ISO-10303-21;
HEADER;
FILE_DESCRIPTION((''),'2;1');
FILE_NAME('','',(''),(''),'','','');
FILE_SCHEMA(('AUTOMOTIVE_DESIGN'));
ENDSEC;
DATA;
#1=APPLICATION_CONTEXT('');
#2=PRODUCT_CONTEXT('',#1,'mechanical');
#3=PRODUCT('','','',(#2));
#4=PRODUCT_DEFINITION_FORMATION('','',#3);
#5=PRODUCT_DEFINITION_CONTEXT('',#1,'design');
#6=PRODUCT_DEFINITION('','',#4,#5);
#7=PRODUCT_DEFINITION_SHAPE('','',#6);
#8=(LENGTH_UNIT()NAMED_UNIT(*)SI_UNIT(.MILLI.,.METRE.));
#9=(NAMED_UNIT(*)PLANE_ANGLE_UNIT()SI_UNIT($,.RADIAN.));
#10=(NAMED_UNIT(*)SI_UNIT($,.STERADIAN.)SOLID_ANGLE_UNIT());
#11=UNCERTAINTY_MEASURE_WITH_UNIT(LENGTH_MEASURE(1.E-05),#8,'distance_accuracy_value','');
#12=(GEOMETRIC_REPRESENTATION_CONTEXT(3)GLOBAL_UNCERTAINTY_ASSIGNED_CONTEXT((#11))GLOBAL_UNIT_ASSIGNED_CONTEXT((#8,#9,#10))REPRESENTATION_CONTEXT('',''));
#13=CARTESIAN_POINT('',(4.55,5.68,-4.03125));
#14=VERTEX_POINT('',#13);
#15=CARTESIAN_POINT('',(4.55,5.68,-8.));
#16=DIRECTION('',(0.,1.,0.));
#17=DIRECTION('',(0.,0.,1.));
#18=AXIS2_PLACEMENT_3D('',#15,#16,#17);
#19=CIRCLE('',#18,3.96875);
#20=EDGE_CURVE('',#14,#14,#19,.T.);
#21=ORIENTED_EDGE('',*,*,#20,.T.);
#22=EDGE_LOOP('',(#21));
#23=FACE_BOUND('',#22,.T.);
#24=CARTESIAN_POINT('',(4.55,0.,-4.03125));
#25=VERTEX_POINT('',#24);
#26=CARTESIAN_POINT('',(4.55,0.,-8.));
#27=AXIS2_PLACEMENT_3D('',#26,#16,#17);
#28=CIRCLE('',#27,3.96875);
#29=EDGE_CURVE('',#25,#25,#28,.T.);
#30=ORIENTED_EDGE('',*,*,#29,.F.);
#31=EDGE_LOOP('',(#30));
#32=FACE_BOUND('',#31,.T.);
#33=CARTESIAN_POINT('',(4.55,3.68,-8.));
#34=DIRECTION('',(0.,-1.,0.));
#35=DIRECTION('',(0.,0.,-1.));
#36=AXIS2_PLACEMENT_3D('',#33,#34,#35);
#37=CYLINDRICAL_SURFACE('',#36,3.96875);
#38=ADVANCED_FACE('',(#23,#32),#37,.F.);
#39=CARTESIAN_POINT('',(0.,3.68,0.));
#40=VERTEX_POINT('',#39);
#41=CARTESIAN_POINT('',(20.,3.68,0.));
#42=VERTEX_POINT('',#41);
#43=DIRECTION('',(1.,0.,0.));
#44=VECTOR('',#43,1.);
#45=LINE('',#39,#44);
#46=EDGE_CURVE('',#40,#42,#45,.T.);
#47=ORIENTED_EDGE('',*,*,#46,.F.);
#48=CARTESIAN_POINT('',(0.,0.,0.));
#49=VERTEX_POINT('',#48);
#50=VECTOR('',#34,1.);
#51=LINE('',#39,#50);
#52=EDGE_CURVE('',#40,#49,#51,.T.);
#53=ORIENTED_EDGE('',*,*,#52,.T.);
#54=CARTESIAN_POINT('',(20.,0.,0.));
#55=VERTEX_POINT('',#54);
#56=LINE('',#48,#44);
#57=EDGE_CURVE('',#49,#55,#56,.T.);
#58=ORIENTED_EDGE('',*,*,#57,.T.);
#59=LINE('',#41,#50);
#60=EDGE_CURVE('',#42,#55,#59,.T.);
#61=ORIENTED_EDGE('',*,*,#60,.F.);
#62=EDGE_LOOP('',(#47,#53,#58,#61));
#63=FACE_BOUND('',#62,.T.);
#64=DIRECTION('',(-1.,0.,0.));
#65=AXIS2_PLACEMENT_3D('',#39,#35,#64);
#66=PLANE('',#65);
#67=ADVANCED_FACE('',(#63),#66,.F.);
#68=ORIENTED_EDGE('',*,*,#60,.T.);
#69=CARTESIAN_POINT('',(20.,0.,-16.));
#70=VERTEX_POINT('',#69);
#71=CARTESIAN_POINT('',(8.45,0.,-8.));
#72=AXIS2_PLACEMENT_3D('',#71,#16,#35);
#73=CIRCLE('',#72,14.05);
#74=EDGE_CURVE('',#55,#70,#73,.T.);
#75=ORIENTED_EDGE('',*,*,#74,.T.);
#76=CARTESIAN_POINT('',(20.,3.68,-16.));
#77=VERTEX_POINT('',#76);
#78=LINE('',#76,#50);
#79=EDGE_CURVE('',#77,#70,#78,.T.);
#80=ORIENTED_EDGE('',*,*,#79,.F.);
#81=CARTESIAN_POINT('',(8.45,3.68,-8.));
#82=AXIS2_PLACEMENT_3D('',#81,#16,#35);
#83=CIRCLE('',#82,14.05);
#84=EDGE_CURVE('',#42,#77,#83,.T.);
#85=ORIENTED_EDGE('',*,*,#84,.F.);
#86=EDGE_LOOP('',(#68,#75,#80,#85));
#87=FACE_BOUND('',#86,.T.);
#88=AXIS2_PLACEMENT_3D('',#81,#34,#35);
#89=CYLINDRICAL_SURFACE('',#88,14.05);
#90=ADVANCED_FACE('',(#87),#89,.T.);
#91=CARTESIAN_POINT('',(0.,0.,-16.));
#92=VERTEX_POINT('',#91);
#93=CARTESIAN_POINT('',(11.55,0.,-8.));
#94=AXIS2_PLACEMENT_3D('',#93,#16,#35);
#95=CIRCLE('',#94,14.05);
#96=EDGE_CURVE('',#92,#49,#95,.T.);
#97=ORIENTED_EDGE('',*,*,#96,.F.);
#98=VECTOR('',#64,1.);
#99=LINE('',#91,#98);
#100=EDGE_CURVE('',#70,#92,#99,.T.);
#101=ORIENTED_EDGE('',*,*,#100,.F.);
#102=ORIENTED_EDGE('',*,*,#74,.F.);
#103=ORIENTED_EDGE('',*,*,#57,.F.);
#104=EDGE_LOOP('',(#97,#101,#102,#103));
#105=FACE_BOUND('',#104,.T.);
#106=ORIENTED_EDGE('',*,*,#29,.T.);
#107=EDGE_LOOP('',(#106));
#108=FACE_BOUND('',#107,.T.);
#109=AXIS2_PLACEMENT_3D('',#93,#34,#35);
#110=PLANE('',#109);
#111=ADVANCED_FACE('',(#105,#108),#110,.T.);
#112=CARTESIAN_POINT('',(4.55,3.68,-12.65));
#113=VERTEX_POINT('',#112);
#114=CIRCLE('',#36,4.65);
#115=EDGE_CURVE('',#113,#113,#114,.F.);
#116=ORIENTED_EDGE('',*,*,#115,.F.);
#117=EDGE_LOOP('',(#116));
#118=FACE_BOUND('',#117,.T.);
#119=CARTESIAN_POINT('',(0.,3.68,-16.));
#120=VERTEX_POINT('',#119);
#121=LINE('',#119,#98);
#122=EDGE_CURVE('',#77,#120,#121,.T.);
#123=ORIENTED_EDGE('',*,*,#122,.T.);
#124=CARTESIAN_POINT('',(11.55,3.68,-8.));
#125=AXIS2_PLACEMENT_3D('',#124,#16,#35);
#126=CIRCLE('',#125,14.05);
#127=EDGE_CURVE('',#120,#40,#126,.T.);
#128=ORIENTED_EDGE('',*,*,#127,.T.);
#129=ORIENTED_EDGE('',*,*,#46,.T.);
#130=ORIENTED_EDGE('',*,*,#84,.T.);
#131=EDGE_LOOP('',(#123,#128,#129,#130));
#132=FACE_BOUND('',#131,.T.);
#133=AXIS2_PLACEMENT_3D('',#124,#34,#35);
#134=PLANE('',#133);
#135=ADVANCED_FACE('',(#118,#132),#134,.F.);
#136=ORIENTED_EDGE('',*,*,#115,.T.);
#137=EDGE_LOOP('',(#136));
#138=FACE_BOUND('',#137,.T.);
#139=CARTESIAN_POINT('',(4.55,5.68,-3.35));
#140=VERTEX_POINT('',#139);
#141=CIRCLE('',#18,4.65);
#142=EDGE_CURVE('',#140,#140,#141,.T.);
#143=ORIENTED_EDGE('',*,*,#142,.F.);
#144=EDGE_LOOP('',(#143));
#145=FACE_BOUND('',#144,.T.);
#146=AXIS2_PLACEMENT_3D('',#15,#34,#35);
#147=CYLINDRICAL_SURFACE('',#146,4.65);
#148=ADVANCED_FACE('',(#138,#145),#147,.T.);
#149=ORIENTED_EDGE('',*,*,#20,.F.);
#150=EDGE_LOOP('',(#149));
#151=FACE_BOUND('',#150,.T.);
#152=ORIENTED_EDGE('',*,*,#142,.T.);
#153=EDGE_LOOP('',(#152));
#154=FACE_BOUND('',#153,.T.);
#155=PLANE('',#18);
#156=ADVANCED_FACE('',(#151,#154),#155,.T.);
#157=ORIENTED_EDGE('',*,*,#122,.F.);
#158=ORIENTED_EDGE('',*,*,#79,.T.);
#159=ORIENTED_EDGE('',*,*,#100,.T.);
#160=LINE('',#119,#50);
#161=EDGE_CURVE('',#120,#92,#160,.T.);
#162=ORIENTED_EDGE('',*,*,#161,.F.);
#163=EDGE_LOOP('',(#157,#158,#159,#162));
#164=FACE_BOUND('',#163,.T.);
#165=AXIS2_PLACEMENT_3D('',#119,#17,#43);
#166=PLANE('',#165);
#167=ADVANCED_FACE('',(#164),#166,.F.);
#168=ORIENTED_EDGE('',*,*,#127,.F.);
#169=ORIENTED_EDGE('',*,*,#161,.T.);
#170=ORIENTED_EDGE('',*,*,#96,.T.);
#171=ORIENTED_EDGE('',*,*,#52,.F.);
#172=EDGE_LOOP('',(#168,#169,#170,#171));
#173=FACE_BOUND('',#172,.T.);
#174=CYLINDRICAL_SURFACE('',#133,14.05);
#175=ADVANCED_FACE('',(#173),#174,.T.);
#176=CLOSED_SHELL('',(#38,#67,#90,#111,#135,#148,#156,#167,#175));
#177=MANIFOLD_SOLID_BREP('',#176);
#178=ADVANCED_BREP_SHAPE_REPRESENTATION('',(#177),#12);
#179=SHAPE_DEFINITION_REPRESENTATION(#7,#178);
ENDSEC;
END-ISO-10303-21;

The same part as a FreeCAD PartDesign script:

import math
import FreeCAD as App
import Part
import Sketcher

V = App.Vector

doc = App.newDocument("Part")
body = doc.addObject("PartDesign::Body", "Body")

# Sketch on XZ plane
sketch1 = body.newObject("Sketcher::SketchObject", "Sketch")
sketch1.AttachmentSupport = (doc.getObject("XZ_Plane"), [""])
sketch1.MapMode = "FlatFace"
sketch1.addGeometry([
    Part.LineSegment(V(0, 0, 0), V(20, 0, 0)),  # 0
    Part.ArcOfCircle(Part.Circle(V(8.4, -8, 0), V(0, 0, 1), 14.1), math.radians(-35), math.radians(35)),  # 1
    Part.LineSegment(V(20, -16, 0), V(0, -16, 0)),  # 2
    Part.ArcOfCircle(Part.Circle(V(11.6, -8, 0), V(0, 0, 1), 14.1), math.radians(145), math.radians(215)),  # 3
    Part.Circle(V(4.5, -8, 0), V(0, 0, 1), 4),  # 4
], False)
sketch1.addConstraint([
    Sketcher.Constraint("Coincident", 0, 2, 1, 2),
    Sketcher.Constraint("Coincident", 1, 1, 2, 1),
    Sketcher.Constraint("Coincident", 2, 2, 3, 2),
    Sketcher.Constraint("Coincident", 3, 1, 0, 1),
    Sketcher.Constraint("Horizontal", 0),
    Sketcher.Constraint("Horizontal", 2),
    Sketcher.Constraint("Coincident", 3, 1, -1, 1),
    Sketcher.Constraint("Equal", 1, 3),
    Sketcher.Constraint("PointOnObject", 2, 2, -2),
    Sketcher.Constraint("Horizontal", 1, 3, 3, 3),
    Sketcher.Constraint("Horizontal", 3, 3, 4, 3),
    Sketcher.Constraint("DistanceX", 0, 1, 0, 2, 20.0),
    Sketcher.Constraint("Radius", 1, 14.05),
    Sketcher.Constraint("DistanceY", 1, 3, -1, 1, 8.0),
    Sketcher.Constraint("DistanceX", 4, 3, 3, 3, 7.0),
    Sketcher.Constraint("Diameter", 4, 7.9375),
])
pad1 = body.newObject("PartDesign::Pad", "Pad")
pad1.Profile = sketch1
pad1.Length = 3.68
pad1.Reversed = True

# Sketch on XZ plane
sketch2 = body.newObject("Sketcher::SketchObject", "Sketch001")
sketch2.AttachmentSupport = (doc.getObject("XZ_Plane"), [""])
sketch2.MapMode = "FlatFace"
sketch2.AttachmentOffset = App.Placement(V(0, 0, -3.68), App.Rotation())
sketch2.addGeometry([
    Part.Circle(V(4.5, -8, 0), V(0, 0, 1), 4.7),
    Part.Circle(V(4.5, -8, 0), V(0, 0, 1), 4),
], False)
sketch2.addConstraint([
    Sketcher.Constraint("Coincident", 1, 3, 0, 3),
    Sketcher.Constraint("Diameter", 0, 9.3),
    Sketcher.Constraint("DistanceY", 0, 3, -1, 1, 8.0),
    Sketcher.Constraint("Diameter", 1, 7.9375),
    Sketcher.Constraint("DistanceX", -1, 1, 0, 3, 4.55),
])
pad2 = body.newObject("PartDesign::Pad", "Pad001")
pad2.Profile = sketch2
pad2.Length = 2
pad2.Reversed = True

doc.recompute()
